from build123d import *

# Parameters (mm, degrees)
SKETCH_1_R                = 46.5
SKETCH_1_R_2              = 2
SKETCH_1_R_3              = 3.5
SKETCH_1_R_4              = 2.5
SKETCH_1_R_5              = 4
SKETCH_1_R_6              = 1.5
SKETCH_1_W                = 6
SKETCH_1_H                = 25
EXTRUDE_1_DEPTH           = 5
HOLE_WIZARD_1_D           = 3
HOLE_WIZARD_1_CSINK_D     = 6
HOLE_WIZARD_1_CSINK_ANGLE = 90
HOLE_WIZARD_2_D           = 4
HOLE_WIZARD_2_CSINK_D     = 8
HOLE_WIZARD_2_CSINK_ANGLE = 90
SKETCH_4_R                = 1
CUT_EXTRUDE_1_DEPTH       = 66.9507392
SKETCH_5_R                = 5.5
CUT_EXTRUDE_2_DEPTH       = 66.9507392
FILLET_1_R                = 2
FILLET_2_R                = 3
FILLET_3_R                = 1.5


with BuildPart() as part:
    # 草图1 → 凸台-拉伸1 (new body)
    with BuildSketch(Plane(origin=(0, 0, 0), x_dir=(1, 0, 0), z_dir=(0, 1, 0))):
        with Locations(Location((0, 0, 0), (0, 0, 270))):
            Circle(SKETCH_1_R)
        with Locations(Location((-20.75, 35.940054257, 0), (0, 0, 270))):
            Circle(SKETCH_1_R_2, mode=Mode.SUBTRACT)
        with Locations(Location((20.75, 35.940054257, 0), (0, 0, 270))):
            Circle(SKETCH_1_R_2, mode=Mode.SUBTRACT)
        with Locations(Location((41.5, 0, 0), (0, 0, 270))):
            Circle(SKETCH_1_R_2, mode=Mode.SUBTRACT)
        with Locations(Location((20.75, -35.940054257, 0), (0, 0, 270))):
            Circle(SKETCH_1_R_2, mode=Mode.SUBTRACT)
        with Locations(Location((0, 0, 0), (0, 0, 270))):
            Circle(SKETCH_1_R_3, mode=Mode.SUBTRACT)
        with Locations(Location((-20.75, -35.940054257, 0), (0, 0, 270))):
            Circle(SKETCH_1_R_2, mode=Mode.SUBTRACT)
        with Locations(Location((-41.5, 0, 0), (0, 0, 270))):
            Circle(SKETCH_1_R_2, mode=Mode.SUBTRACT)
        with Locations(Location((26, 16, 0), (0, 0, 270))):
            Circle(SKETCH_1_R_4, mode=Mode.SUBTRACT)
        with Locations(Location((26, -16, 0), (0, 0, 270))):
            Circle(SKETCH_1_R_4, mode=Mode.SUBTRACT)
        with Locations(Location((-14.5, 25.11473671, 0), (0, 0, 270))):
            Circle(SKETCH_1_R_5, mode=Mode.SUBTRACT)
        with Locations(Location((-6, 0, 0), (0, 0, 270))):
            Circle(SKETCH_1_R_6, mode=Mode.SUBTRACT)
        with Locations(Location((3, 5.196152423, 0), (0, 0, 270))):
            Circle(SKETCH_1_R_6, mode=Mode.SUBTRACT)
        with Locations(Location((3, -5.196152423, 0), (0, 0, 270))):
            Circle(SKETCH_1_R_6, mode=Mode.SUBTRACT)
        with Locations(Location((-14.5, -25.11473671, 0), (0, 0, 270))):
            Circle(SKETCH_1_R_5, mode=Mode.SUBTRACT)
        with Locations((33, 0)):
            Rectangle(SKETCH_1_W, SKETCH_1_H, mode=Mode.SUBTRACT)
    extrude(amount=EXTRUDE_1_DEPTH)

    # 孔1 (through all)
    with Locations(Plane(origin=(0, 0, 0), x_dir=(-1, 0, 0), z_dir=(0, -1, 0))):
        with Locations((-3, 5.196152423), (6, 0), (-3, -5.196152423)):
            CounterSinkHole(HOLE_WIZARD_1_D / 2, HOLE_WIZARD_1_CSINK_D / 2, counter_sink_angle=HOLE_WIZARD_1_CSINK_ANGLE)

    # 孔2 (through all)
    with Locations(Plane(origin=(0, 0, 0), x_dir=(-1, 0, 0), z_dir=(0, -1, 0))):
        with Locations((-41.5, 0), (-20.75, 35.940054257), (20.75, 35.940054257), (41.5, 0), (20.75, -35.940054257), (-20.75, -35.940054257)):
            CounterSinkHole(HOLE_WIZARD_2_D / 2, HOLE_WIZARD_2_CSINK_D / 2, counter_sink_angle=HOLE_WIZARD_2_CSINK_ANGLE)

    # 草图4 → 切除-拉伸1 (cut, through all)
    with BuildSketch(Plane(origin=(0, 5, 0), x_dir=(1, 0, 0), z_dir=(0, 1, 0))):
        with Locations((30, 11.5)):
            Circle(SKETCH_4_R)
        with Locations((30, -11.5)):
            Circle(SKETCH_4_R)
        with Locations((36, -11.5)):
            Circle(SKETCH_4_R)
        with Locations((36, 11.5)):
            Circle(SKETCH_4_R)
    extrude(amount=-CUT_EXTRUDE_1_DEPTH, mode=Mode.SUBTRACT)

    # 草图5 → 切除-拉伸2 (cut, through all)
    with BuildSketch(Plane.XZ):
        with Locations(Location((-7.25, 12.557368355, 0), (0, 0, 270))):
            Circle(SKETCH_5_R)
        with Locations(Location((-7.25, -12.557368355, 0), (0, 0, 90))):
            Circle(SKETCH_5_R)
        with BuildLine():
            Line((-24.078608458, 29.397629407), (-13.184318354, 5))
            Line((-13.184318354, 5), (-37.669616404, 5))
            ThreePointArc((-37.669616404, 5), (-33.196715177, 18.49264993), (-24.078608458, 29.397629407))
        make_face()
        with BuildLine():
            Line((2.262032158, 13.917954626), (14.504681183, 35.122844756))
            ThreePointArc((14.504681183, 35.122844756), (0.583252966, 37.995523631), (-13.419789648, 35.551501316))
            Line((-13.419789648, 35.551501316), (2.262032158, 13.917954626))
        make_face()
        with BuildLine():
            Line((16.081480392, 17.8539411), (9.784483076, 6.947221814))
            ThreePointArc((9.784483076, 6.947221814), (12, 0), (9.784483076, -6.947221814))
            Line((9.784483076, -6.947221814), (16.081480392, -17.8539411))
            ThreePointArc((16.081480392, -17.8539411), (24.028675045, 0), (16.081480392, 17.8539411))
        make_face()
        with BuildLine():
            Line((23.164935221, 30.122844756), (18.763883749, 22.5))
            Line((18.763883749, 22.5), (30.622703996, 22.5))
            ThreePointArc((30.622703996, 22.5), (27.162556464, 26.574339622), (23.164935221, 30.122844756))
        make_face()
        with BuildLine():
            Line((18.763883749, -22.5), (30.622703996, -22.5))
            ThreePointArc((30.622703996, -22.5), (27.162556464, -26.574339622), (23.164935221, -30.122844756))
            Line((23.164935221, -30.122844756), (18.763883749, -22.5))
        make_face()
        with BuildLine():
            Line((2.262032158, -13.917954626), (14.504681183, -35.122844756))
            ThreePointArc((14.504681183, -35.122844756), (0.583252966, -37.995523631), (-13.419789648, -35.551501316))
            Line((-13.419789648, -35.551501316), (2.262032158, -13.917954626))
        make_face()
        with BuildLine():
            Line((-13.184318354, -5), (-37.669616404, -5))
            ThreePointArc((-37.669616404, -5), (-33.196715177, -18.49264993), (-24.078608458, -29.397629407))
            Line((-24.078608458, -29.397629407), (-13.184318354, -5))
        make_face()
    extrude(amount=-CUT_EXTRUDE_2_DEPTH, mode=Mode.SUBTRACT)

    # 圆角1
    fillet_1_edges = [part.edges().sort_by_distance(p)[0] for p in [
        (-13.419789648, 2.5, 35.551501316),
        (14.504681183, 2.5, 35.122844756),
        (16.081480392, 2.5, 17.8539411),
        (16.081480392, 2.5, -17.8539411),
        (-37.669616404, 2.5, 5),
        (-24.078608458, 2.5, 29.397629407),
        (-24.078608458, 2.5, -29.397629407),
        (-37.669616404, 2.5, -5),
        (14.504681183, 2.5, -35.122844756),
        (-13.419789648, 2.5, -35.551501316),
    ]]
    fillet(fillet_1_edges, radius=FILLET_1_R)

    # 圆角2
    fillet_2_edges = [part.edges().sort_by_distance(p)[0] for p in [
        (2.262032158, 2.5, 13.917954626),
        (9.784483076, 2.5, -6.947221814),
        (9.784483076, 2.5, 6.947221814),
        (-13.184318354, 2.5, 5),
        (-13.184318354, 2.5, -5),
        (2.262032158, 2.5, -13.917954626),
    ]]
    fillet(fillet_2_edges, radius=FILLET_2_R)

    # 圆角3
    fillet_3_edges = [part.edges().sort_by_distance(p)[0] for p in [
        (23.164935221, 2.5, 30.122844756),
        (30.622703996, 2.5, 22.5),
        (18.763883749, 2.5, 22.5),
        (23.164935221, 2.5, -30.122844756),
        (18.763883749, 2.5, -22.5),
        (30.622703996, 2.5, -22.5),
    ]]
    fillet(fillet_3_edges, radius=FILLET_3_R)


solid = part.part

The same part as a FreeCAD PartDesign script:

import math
import FreeCAD as App
import Part
import Sketcher

V = App.Vector
Q = App.Units.Quantity


def edges_at(feature, points):
    """Names of the edges that pass closest to the given points."""
    edges = feature.Shape.Edges
    near = lambda p: min(range(len(edges)), key=lambda i: edges[i].distToShape(Part.Vertex(*p))[0])
    return sorted({f"Edge{near(p) + 1}" for p in points})

doc = App.newDocument("Part")
body = doc.addObject("PartDesign::Body", "Body")

# Sketch on XZ plane
sketch1 = body.newObject("Sketcher::SketchObject", "Sketch")
sketch1.AttachmentSupport = (doc.getObject("XZ_Plane"), [""])
sketch1.MapMode = "FlatFace"
sketch1.addGeometry([
    Part.Circle(V(0, 0, 0), V(0, 0, 1), 46.5),  # 0
    Part.Circle(V(-20.8, -35.9, 0), V(0, 0, 1), 2),  # 1
    Part.Circle(V(-14.5, -25.1, 0), V(0, 0, 1), 4),  # 2
    Part.Circle(V(-41.5, 0, 0), V(0, 0, 1), 2),  # 3
    Part.Circle(V(-6, 0, 0), V(0, 0, 1), 1.5),  # 4
    Part.Circle(V(-14.5, 25.1, 0), V(0, 0, 1), 4),  # 5
    Part.Circle(V(-20.8, 35.9, 0), V(0, 0, 1), 2),  # 6
    Part.Circle(V(20.8, -35.9, 0), V(0, 0, 1), 2),  # 7
    Part.Circle(V(3, -5.2, 0), V(0, 0, 1), 1.5),  # 8
    Part.Circle(V(26, -16, 0), V(0, 0, 1), 2.5),  # 9
    Part.LineSegment(V(36, 12.5, 0), V(30, 12.5, 0)),  # 10
    Part.LineSegment(V(30, 12.5, 0), V(30, -12.5, 0)),  # 11
    Part.LineSegment(V(30, -12.5, 0), V(36, -12.5, 0)),  # 12
    Part.LineSegment(V(36, -12.5, 0), V(36, 12.5, 0)),  # 13
    Part.Circle(V(41.5, 0, 0), V(0, 0, 1), 2),  # 14
    Part.Circle(V(0, 0, 0), V(0, 0, 1), 3.5),  # 15
    Part.Circle(V(3, 5.2, 0), V(0, 0, 1), 1.5),  # 16
    Part.Circle(V(20.8, 35.9, 0), V(0, 0, 1), 2),  # 17
    Part.Circle(V(26, 16, 0), V(0, 0, 1), 2.5),  # 18
], False)
sketch1.addConstraint([
    Sketcher.Constraint("Coincident", 10, 2, 11, 1),
    Sketcher.Constraint("Coincident", 11, 2, 12, 1),
    Sketcher.Constraint("Coincident", 12, 2, 13, 1),
    Sketcher.Constraint("Coincident", 13, 2, 10, 1),
    Sketcher.Constraint("Horizontal", 10),
    Sketcher.Constraint("Vertical", 11),
    Sketcher.Constraint("Horizontal", 12),
    Sketcher.Constraint("Vertical", 13),
    Sketcher.Constraint("Coincident", 0, 3, -1, 1),
    Sketcher.Constraint("Coincident", 15, 3, -1, 1),
    Sketcher.Constraint("Equal", 1, 3),
    Sketcher.Constraint("Equal", 2, 5),
    Sketcher.Constraint("Equal", 3, 6),
    Sketcher.Constraint("Equal", 6, 7),
    Sketcher.Constraint("Equal", 4, 8),
    Sketcher.Constraint("Equal", 7, 14),
    Sketcher.Constraint("Equal", 8, 16),
    Sketcher.Constraint("Equal", 14, 17),
    Sketcher.Constraint("Equal", 9, 18),
    Sketcher.Constraint("Symmetric", 6, 3, 7, 3, -1, 1),
    Sketcher.Constraint("Symmetric", 3, 3, 14, 3, -1, 1),
    Sketcher.Constraint("Symmetric", 1, 3, 17, 3, -1, 1),
    Sketcher.Constraint("Symmetric", 1, 3, 7, 3, -2),
    Sketcher.Constraint("Symmetric", 2, 3, 5, 3, -1),
    Sketcher.Constraint("Symmetric", 8, 3, 16, 3, -1),
    Sketcher.Constraint("Symmetric", 9, 3, 18, 3, -1),
    Sketcher.Constraint("PointOnObject", 3, 3, -1),
    Sketcher.Constraint("PointOnObject", 4, 3, -1),
    Sketcher.Constraint("Diameter", 0, 93.0),
    Sketcher.Constraint("Diameter", 1, 4.0),
    Sketcher.Constraint("Diameter", 2, 8.0),
    Sketcher.Constraint("Diameter", 4, 3.0),
    Sketcher.Constraint("Diameter", 9, 5.0),
    Sketcher.Constraint("Diameter", 15, 7.0),
    Sketcher.Constraint("DistanceX", 10, 2, 10, 1, 6.0),
    Sketcher.Constraint("DistanceY", 11, 2, 11, 1, 25.0),
    Sketcher.Constraint("DistanceX", 4, 3, -1, 1, 6.0),
    Sketcher.Constraint("DistanceX", -1, 1, 8, 3, 3.0),
    Sketcher.Constraint("DistanceX", -1, 1, 9, 3, 26.0),
    Sketcher.Constraint("DistanceY", 9, 3, -1, 1, 16.0),
    Sketcher.Constraint("DistanceX", -1, 1, 10, 2, 30.0),
    Sketcher.Constraint("DistanceX", 3, 3, 2, 3, 27.0),
    Sketcher.Constraint("DistanceX", 2, 3, -1, 1, 14.5),
    Sketcher.Constraint("DistanceY", -1, 1, 10, 2, 12.5),
    Sketcher.Constraint("DistanceX", 1, 3, 7, 3, 41.5),
    Sketcher.Constraint("DistanceY", 7, 3, 8, 3, 30.743902),
    Sketcher.Constraint("DistanceY", 1, 3, 5, 3, 61.054791),
    Sketcher.Constraint("DistanceY", 1, 3, -1, 1, 35.940054),
])
pad1 = body.newObject("PartDesign::Pad", "Pad")
pad1.Profile = sketch1
pad1.Length = 5
pad1.Reversed = True

# Sketch on XZ plane
sketch2 = body.newObject("Sketcher::SketchObject", "Sketch001")
sketch2.AttachmentSupport = (doc.getObject("XZ_Plane"), [""])
sketch2.MapMode = "FlatFace"
sketch2.addGeometry([
    Part.Circle(V(3, -5.2, 0), V(0, 0, 1), 1.5),
    Part.Circle(V(-6, 0, 0), V(0, 0, 1), 1.5),
    Part.Circle(V(3, 5.2, 0), V(0, 0, 1), 1.5),
], False)
sketch2.addConstraint([
    Sketcher.Constraint("Equal", 0, 1),
    Sketcher.Constraint("Equal", 1, 2),
    Sketcher.Constraint("Symmetric", 0, 3, 2, 3, -1),
    Sketcher.Constraint("PointOnObject", 1, 3, -1),
    Sketcher.Constraint("Diameter", 0, 3.0),
    Sketcher.Constraint("DistanceX", -1, 1, 0, 3, 3.0),
    Sketcher.Constraint("DistanceX", 1, 3, -1, 1, 6.0),
    Sketcher.Constraint("DistanceY", 0, 3, -1, 1, 5.196152),
])
doc.recompute()
hole = body.newObject("PartDesign::Hole", "Hole")
hole.Profile = sketch2
hole.ThreadType = "None"
hole.Diameter = 3
hole.DepthType = "ThroughAll"
hole.HoleCutType = "Countersink"
hole.HoleCutDiameter = 6
hole.HoleCutCountersinkAngle = 90

# Sketch on XZ plane
sketch3 = body.newObject("Sketcher::SketchObject", "Sketch002")
sketch3.AttachmentSupport = (doc.getObject("XZ_Plane"), [""])
sketch3.MapMode = "FlatFace"
sketch3.addGeometry([
    Part.Circle(V(41.5, 0, 0), V(0, 0, 1), 2),  # 0
    Part.Circle(V(20.8, -35.9, 0), V(0, 0, 1), 2),  # 1
    Part.Circle(V(-20.8, -35.9, 0), V(0, 0, 1), 2),  # 2
    Part.Circle(V(-41.5, 0, 0), V(0, 0, 1), 2),  # 3
    Part.Circle(V(-20.8, 35.9, 0), V(0, 0, 1), 2),  # 4
    Part.Circle(V(20.8, 35.9, 0), V(0, 0, 1), 2),  # 5
], False)
sketch3.addConstraint([
    Sketcher.Constraint("Equal", 0, 1),
    Sketcher.Constraint("Equal", 1, 2),
    Sketcher.Constraint("Equal", 2, 3),
    Sketcher.Constraint("Equal", 3, 4),
    Sketcher.Constraint("Equal", 4, 5),
    Sketcher.Constraint("Symmetric", 0, 3, 3, 3, -1, 1),
    Sketcher.Constraint("Symmetric", 1, 3, 4, 3, -1, 1),
    Sketcher.Constraint("Symmetric", 2, 3, 5, 3, -1, 1),
    Sketcher.Constraint("Symmetric", 1, 3, 2, 3, -2),
    Sketcher.Constraint("PointOnObject", 0, 3, -1),
    Sketcher.Constraint("Diameter", 0, 4.0),
    Sketcher.Constraint("DistanceX", 3, 3, 0, 3, 83.0),
    Sketcher.Constraint("DistanceX", 2, 3, 1, 3, 41.5),
    Sketcher.Constraint("DistanceY", 2, 3, 4, 3, 71.880109),
])
doc.recompute()
hole2 = body.newObject("PartDesign::Hole", "Hole001")
hole2.Profile = sketch3
hole2.ThreadType = "None"
hole2.Diameter = 4
hole2.DepthType = "ThroughAll"
hole2.HoleCutType = "Countersink"
hole2.HoleCutDiameter = 8
hole2.HoleCutCountersinkAngle = 90

# Sketch on XZ plane
sketch4 = body.newObject("Sketcher::SketchObject", "Sketch003")
sketch4.AttachmentSupport = (doc.getObject("XZ_Plane"), [""])
sketch4.MapMode = "FlatFace"
sketch4.AttachmentOffset = App.Placement(V(0, 0, -5), App.Rotation())
sketch4.addGeometry([
    Part.Circle(V(30, -11.5, 0), V(0, 0, 1), 1),
    Part.Circle(V(30, 11.5, 0), V(0, 0, 1), 1),
    Part.Circle(V(36, 11.5, 0), V(0, 0, 1), 1),
    Part.Circle(V(36, -11.5, 0), V(0, 0, 1), 1),
], False)
sketch4.addConstraint([
    Sketcher.Constraint("Equal", 0, 1),
    Sketcher.Constraint("Equal", 1, 2),
    Sketcher.Constraint("Equal", 2, 3),
    Sketcher.Constraint("Symmetric", 0, 3, 1, 3, -1),
    Sketcher.Constraint("Symmetric", 2, 3, 3, 3, -1),
    Sketcher.Constraint("Horizontal", 1, 3, 2, 3),
    Sketcher.Constraint("Diameter", 0, 2.0),
    Sketcher.Constraint("DistanceX", -1, 1, 0, 3, 30.0),
    Sketcher.Constraint("DistanceX", -1, 1, 2, 3, 36.0),
    Sketcher.Constraint("DistanceY", 0, 3, 1, 3, 23.0),
])
pocket1 = body.newObject("PartDesign::Pocket", "Pocket")
pocket1.Profile = sketch4
pocket1.Type = "ThroughAll"
pocket1.Reversed = True

# Sketch on XZ plane
sketch5 = body.newObject("Sketcher::SketchObject", "Sketch004")
sketch5.AttachmentSupport = (doc.getObject("XZ_Plane"), [""])
sketch5.MapMode = "FlatFace"
sketch5.addGeometry([
    Part.Circle(V(-7, 13, 0), V(0, 0, 1), 6),  # 0
    Part.Circle(V(-7, -13, 0), V(0, 0, 1), 6),  # 1
    Part.LineSegment(V(-13, 5, 0), V(-24, 29, 0)),  # 2
    Part.ArcOfCircle(Part.Circle(V(0, 0, 0), V(0, 0, 1), 38), math.radians(129), math.radians(172)),  # 3
    Part.LineSegment(V(-38, 5, 0), V(-13, 5, 0)),  # 4
    Part.LineSegment(V(2, 14, 0), V(15, 35, 0)),  # 5
    Part.ArcOfCircle(Part.Circle(V(0, 0, 0), V(0, 0, 1), 38), math.radians(68), math.radians(111)),  # 6
    Part.LineSegment(V(-13, 36, 0), V(2, 14, 0)),  # 7
    Part.LineSegment(V(16, 18, 0), V(10, 7, 0)),  # 8
    Part.ArcOfCircle(Part.Circle(V(0, 0, 0), V(0, 0, 1), 12), math.radians(-35), math.radians(35)),  # 9
    Part.LineSegment(V(10, -7, 0), V(16, -18, 0)),  # 10
    Part.ArcOfCircle(Part.Circle(V(0, 0, 0), V(0, 0, 1), 24), math.radians(-48), math.radians(48)),  # 11
    Part.LineSegment(V(23, 30, 0), V(19, 22, 0)),  # 12
    Part.LineSegment(V(19, 22, 0), V(31, 22, 0)),  # 13
    Part.ArcOfCircle(Part.Circle(V(0, 0, 0), V(0, 0, 1), 38), math.radians(36.31), math.radians(52.44)),  # 14
    Part.LineSegment(V(31, -22, 0), V(19, -22, 0)),  # 15
    Part.LineSegment(V(19, -22, 0), V(23, -30, 0)),  # 16
    Part.ArcOfCircle(Part.Circle(V(0, 0, 0), V(0, 0, 1), 38), math.radians(-52.44), math.radians(-36.31)),  # 17
    Part.LineSegment(V(15, -35, 0), V(2, -14, 0)),  # 18
    Part.LineSegment(V(2, -14, 0), V(-13, -36, 0)),  # 19
    Part.ArcOfCircle(Part.Circle(V(0, 0, 0), V(0, 0, 1), 38), math.radians(-111), math.radians(-68)),  # 20
    Part.LineSegment(V(-13, -5, 0), V(-38, -5, 0)),  # 21
    Part.ArcOfCircle(Part.Circle(V(0, 0, 0), V(0, 0, 1), 38), math.radians(-172), math.radians(-129)),  # 22
    Part.LineSegment(V(-24, -29, 0), V(-13, -5, 0)),  # 23
], False)
sketch5.addConstraint([
    Sketcher.Constraint("Coincident", 2, 2, 3, 1),
    Sketcher.Constraint("Coincident", 3, 2, 4, 1),
    Sketcher.Constraint("Coincident", 4, 2, 2, 1),
    Sketcher.Constraint("Coincident", 5, 2, 6, 1),
    Sketcher.Constraint("Coincident", 6, 2, 7, 1),
    Sketcher.Constraint("Coincident", 7, 2, 5, 1),
    Sketcher.Constraint("Coincident", 8, 2, 9, 2),
    Sketcher.Constraint("Coincident", 9, 1, 10, 1),
    Sketcher.Constraint("Coincident", 10, 2, 11, 1),
    Sketcher.Constraint("Coincident", 11, 2, 8, 1),
    Sketcher.Constraint("Coincident", 12, 2, 13, 1),
    Sketcher.Constraint("Coincident", 13, 2, 14, 1),
    Sketcher.Constraint("Coincident", 14, 2, 12, 1),
    Sketcher.Constraint("Coincident", 15, 2, 16, 1),
    Sketcher.Constraint("Coincident", 16, 2, 17, 1),
    Sketcher.Constraint("Coincident", 17, 2, 15, 1),
    Sketcher.Constraint("Coincident", 18, 2, 19, 1),
    Sketcher.Constraint("Coincident", 19, 2, 20, 1),
    Sketcher.Constraint("Coincident", 20, 2, 18, 1),
    Sketcher.Constraint("Coincident", 21, 2, 22, 1),
    Sketcher.Constraint("Coincident", 22, 2, 23, 1),
    Sketcher.Constraint("Coincident", 23, 2, 21, 1),
    Sketcher.Constraint("Horizontal", 4),
    Sketcher.Constraint("Horizontal", 13),
    Sketcher.Constraint("Horizontal", 15),
    Sketcher.Constraint("Horizontal", 21),
    Sketcher.Constraint("Coincident", 3, 3, -1, 1),
    Sketcher.Constraint("Coincident", 6, 3, -1, 1),
    Sketcher.Constraint("Coincident", 9, 3, -1, 1),
    Sketcher.Constraint("Coincident", 11, 3, -1, 1),
    Sketcher.Constraint("Coincident", 14, 3, -1, 1),
    Sketcher.Constraint("Coincident", 17, 3, -1, 1),
    Sketcher.Constraint("Coincident", 20, 3, -1, 1),
    Sketcher.Constraint("Coincident", 22, 3, -1, 1),
    Sketcher.Constraint("Equal", 0, 1),
    Sketcher.Constraint("Equal", 3, 6),
    Sketcher.Constraint("Equal", 6, 14),
    Sketcher.Constraint("Equal", 14, 17),
    Sketcher.Constraint("Equal", 17, 20),
    Sketcher.Constraint("Equal", 20, 22),
    Sketcher.Constraint("Symmetric", 0, 3, 1, 3, -1),
    Sketcher.Constraint("Symmetric", 12, 2, 15, 2, -1),
    Sketcher.Constraint("Symmetric", 7, 2, 18, 2, -1),
    Sketcher.Constraint("Symmetric", 4, 2, 23, 2, -1),
    Sketcher.Constraint("Parallel", 5, 8),
    Sketcher.Constraint("Parallel", 8, 12),
    Sketcher.Constraint("Parallel", 10, 16),
    Sketcher.Constraint("Parallel", 16, 18),
    Sketcher.Constraint("Vertical", 8, 2, 9, 1),
    Sketcher.Constraint("Vertical", 10, 2, 11, 2),
    Sketcher.Constraint("Vertical", 6, 2, 19, 2),
    Sketcher.Constraint("Vertical", 2, 2, 22, 2),
    Sketcher.Constraint("Equal", 2, 7),
    Sketcher.Constraint("Diameter", 0, 11.0),
    Sketcher.Constraint("Radius", 3, 38.0),
    Sketcher.Constraint("Radius", 9, 12.0),
    Sketcher.Constraint("Angle", 5, Q("60 deg")),
    Sketcher.Constraint("DistanceY", -1, 1, 3, 2, 5.0),
    Sketcher.Constraint("DistanceY", 14, 2, 5, 2, 5.0),
    Sketcher.Constraint("DistanceY", -1, 1, 12, 2, 22.5),
    Sketcher.Constraint("DistanceX", 0, 3, -1, 1, 7.25),
    Sketcher.Constraint("DistanceX", 4, 1, 4, 2, 24.485298),
    Sketcher.Constraint("Radius", 11, 24.028675),
    Sketcher.Constraint("Distance", 5, 24.485298),
    Sketcher.Constraint("DistanceX", 13, 1, 13, 2, 11.85882),
    Sketcher.Constraint("DistanceY", -1, 1, 6, 2, 35.551501),
    Sketcher.Constraint("DistanceX", 5, 2, 11, 2, 1.576799),
    Sketcher.Constraint("DistanceY", -1, 1, 0, 3, 12.557368),
])
pocket2 = body.newObject("PartDesign::Pocket", "Pocket001")
pocket2.Profile = sketch5
pocket2.Type = "ThroughAll"
doc.recompute()

fillet = body.newObject("PartDesign::Fillet", "Fillet")
fillet.Base = (pocket2, edges_at(pocket2, [
    (-13.42, 2.5, 35.552),
    (14.505, 2.5, 35.123),
    (16.081, 2.5, 17.854),
    (16.081, 2.5, -17.854),
    (-37.67, 2.5, 5),
    (-24.079, 2.5, 29.398),
    (-24.079, 2.5, -29.398),
    (-37.67, 2.5, -5),
    (14.505, 2.5, -35.123),
    (-13.42, 2.5, -35.552),
]))
fillet.Radius = 2
doc.recompute()

fillet2 = body.newObject("PartDesign::Fillet", "Fillet001")
fillet2.Base = (fillet, edges_at(fillet, [
    (2.262, 2.5, 13.918),
    (9.784, 2.5, -6.947),
    (9.784, 2.5, 6.947),
    (-13.184, 2.5, 5),
    (-13.184, 2.5, -5),
    (2.262, 2.5, -13.918),
]))
fillet2.Radius = 3
doc.recompute()

fillet3 = body.newObject("PartDesign::Fillet", "Fillet002")
fillet3.Base = (fillet2, edges_at(fillet2, [
    (23.165, 2.5, 30.123),
    (30.623, 2.5, 22.5),
    (18.764, 2.5, 22.5),
    (23.165, 2.5, -30.123),
    (18.764, 2.5, -22.5),
    (30.623, 2.5, -22.5),
]))
fillet3.Radius = 1.5

doc.recompute()
